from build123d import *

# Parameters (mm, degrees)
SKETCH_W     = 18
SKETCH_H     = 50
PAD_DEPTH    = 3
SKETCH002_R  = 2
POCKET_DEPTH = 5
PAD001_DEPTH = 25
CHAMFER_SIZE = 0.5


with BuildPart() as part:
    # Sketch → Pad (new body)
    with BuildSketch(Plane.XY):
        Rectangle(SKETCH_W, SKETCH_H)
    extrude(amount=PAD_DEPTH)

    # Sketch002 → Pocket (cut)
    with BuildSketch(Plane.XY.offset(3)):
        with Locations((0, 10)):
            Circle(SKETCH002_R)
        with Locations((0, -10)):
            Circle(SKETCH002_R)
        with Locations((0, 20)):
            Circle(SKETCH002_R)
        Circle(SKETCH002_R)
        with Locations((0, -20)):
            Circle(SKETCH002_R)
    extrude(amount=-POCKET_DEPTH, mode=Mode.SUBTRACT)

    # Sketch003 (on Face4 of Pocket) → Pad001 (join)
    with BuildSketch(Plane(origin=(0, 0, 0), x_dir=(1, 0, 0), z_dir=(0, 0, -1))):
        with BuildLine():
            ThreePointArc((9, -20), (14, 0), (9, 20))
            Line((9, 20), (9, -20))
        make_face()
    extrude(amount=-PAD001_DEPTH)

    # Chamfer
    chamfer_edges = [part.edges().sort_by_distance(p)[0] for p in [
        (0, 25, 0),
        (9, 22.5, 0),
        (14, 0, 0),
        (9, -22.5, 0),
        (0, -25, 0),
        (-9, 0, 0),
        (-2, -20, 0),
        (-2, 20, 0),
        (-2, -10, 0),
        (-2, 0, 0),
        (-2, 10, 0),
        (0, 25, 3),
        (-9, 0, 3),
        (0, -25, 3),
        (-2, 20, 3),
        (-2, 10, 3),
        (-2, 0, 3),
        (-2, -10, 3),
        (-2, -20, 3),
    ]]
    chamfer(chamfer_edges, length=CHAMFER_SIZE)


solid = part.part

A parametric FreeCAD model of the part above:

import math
import FreeCAD as App
import Part
import Sketcher
Q = App.Units.Quantity


def edges_at(feature, points):
    """Names of the edges that pass closest to the given points."""
    edges = feature.Shape.Edges
    near = lambda p: min(range(len(edges)), key=lambda i: edges[i].distToShape(Part.Vertex(*p))[0])
    return sorted({f"Edge{near(p) + 1}" for p in points})

doc = App.newDocument("Part")
body = doc.addObject("PartDesign::Body", "Body")

# Sketch on XY plane
sketch1 = body.newObject("Sketcher::SketchObject", "Sketch")
sketch1.AttachmentSupport = (doc.getObject("XY_Plane"), [""])
sketch1.MapMode = "FlatFace"
sketch1.addGeometry(Part.LineSegment(App.Vector(-9, 25, 0), App.Vector(-9, -25, 0)), False)
sketch1.addGeometry(Part.LineSegment(App.Vector(-9, -25, 0), App.Vector(9, -25, 0)), False)
sketch1.addGeometry(Part.LineSegment(App.Vector(9, -25, 0), App.Vector(9, 25, 0)), False)
sketch1.addGeometry(Part.LineSegment(App.Vector(9, 25, 0), App.Vector(-9, 25, 0)), False)
sketch1.addConstraint(Sketcher.Constraint("Coincident", 0, 2, 1, 1))
sketch1.addConstraint(Sketcher.Constraint("Coincident", 1, 2, 2, 1))
sketch1.addConstraint(Sketcher.Constraint("Coincident", 2, 2, 3, 1))
sketch1.addConstraint(Sketcher.Constraint("Coincident", 3, 2, 0, 1))
sketch1.addConstraint(Sketcher.Constraint("Vertical", 0))
sketch1.addConstraint(Sketcher.Constraint("Horizontal", 1))
sketch1.addConstraint(Sketcher.Constraint("Vertical", 2))
sketch1.addConstraint(Sketcher.Constraint("Horizontal", 3))
sketch1.addConstraint(Sketcher.Constraint("Symmetric", 0, 2, 2, 2, -1, 1))
sketch1.addConstraint(Sketcher.Constraint("DistanceX", 1, 1, 1, 2, Q("18 mm")))
sketch1.addConstraint(Sketcher.Constraint("DistanceY", 0, 2, 0, 1, Q("50 mm")))
pad1 = body.newObject("PartDesign::Pad", "Pad")
pad1.Profile = sketch1
pad1.Length = 3

# Sketch on XY plane
sketch2 = body.newObject("Sketcher::SketchObject", "Sketch001")
sketch2.AttachmentSupport = (doc.getObject("XY_Plane"), [""])
sketch2.MapMode = "FlatFace"
sketch2.AttachmentOffset = App.Placement(App.Vector(0, 0, 3), App.Rotation())
sketch2.addGeometry(Part.Circle(App.Vector(0, 10, 0), App.Vector(0, 0, 1), 2), False)
sketch2.addGeometry(Part.Circle(App.Vector(0, -10, 0), App.Vector(0, 0, 1), 2), False)
sketch2.addGeometry(Part.Circle(App.Vector(0, 20, 0), App.Vector(0, 0, 1), 2), False)
sketch2.addGeometry(Part.Circle(App.Vector(0, 0, 0), App.Vector(0, 0, 1), 2), False)
sketch2.addGeometry(Part.Circle(App.Vector(0, -20, 0), App.Vector(0, 0, 1), 2), False)
sketch2.addConstraint(Sketcher.Constraint("Coincident", 3, 3, -1, 1))
sketch2.addConstraint(Sketcher.Constraint("Equal", 0, 1))
sketch2.addConstraint(Sketcher.Constraint("Equal", 1, 2))
sketch2.addConstraint(Sketcher.Constraint("Equal", 2, 3))
sketch2.addConstraint(Sketcher.Constraint("Equal", 3, 4))
sketch2.addConstraint(Sketcher.Constraint("Symmetric", 0, 3, 1, 3, -1, 1))
sketch2.addConstraint(Sketcher.Constraint("Symmetric", 2, 3, 4, 3, -1, 1))
sketch2.addConstraint(Sketcher.Constraint("PointOnObject", 0, 3, -2))
sketch2.addConstraint(Sketcher.Constraint("PointOnObject", 2, 3, -2))
sketch2.addConstraint(Sketcher.Constraint("Diameter", 0, Q("4 mm")))
sketch2.addConstraint(Sketcher.Constraint("DistanceY", -1, 1, 0, 3, Q("10 mm")))
sketch2.addConstraint(Sketcher.Constraint("DistanceY", -1, 1, 2, 3, Q("20 mm")))
pocket1 = body.newObject("PartDesign::Pocket", "Pocket")
pocket1.Profile = sketch2
pocket1.Length = 5

# Sketch on XY plane
sketch3 = body.newObject("Sketcher::SketchObject", "Sketch002")
sketch3.AttachmentSupport = (doc.getObject("XY_Plane"), [""])
sketch3.MapMode = "FlatFace"
sketch3.addGeometry(Part.ArcOfCircle(Part.Circle(App.Vector(-28.5, 0, 0), App.Vector(0, 0, 1), 42.5), math.radians(-28.072487), math.radians(28.072487)), False)
sketch3.addGeometry(Part.LineSegment(App.Vector(9, -20, 0), App.Vector(9, 20, 0)), False)
sketch3.addConstraint(Sketcher.Constraint("Coincident", 0, 1, 1, 1))
sketch3.addConstraint(Sketcher.Constraint("Coincident", 1, 2, 0, 2))
sketch3.addConstraint(Sketcher.Constraint("Vertical", 1))
sketch3.addConstraint(Sketcher.Constraint("PointOnObject", 0, 3, -1))
sketch3.addConstraint(Sketcher.Constraint("Radius", 0, Q("42.5 mm")))
sketch3.addConstraint(Sketcher.Constraint("DistanceY", 1, 1, 1, 2, Q("40 mm")))
sketch3.addConstraint(Sketcher.Constraint("DistanceX", -1, 1, 0, 1, Q("9 mm")))
pad2 = body.newObject("PartDesign::Pad", "Pad001")
pad2.Profile = sketch3
pad2.Length = 25
doc.recompute()

chamfer = body.newObject("PartDesign::Chamfer", "Chamfer")
chamfer.Base = (pad2, edges_at(pad2, [
    (0, 25, 0),
    (9, 22.5, 0),
    (14, 0, 0),
    (9, -22.5, 0),
    (0, -25, 0),
    (-9, 0, 0),
    (-2, -20, 0),
    (-2, 20, 0),
    (-2, -10, 0),
    (-2, 0, 0),
    (-2, 10, 0),
    (0, 25, 3),
    (-9, 0, 3),
    (0, -25, 3),
    (-2, 20, 3),
    (-2, 10, 3),
    (-2, 0, 3),
    (-2, -10, 3),
    (-2, -20, 3),
]))
chamfer.Size = 0.5

doc.recompute()
